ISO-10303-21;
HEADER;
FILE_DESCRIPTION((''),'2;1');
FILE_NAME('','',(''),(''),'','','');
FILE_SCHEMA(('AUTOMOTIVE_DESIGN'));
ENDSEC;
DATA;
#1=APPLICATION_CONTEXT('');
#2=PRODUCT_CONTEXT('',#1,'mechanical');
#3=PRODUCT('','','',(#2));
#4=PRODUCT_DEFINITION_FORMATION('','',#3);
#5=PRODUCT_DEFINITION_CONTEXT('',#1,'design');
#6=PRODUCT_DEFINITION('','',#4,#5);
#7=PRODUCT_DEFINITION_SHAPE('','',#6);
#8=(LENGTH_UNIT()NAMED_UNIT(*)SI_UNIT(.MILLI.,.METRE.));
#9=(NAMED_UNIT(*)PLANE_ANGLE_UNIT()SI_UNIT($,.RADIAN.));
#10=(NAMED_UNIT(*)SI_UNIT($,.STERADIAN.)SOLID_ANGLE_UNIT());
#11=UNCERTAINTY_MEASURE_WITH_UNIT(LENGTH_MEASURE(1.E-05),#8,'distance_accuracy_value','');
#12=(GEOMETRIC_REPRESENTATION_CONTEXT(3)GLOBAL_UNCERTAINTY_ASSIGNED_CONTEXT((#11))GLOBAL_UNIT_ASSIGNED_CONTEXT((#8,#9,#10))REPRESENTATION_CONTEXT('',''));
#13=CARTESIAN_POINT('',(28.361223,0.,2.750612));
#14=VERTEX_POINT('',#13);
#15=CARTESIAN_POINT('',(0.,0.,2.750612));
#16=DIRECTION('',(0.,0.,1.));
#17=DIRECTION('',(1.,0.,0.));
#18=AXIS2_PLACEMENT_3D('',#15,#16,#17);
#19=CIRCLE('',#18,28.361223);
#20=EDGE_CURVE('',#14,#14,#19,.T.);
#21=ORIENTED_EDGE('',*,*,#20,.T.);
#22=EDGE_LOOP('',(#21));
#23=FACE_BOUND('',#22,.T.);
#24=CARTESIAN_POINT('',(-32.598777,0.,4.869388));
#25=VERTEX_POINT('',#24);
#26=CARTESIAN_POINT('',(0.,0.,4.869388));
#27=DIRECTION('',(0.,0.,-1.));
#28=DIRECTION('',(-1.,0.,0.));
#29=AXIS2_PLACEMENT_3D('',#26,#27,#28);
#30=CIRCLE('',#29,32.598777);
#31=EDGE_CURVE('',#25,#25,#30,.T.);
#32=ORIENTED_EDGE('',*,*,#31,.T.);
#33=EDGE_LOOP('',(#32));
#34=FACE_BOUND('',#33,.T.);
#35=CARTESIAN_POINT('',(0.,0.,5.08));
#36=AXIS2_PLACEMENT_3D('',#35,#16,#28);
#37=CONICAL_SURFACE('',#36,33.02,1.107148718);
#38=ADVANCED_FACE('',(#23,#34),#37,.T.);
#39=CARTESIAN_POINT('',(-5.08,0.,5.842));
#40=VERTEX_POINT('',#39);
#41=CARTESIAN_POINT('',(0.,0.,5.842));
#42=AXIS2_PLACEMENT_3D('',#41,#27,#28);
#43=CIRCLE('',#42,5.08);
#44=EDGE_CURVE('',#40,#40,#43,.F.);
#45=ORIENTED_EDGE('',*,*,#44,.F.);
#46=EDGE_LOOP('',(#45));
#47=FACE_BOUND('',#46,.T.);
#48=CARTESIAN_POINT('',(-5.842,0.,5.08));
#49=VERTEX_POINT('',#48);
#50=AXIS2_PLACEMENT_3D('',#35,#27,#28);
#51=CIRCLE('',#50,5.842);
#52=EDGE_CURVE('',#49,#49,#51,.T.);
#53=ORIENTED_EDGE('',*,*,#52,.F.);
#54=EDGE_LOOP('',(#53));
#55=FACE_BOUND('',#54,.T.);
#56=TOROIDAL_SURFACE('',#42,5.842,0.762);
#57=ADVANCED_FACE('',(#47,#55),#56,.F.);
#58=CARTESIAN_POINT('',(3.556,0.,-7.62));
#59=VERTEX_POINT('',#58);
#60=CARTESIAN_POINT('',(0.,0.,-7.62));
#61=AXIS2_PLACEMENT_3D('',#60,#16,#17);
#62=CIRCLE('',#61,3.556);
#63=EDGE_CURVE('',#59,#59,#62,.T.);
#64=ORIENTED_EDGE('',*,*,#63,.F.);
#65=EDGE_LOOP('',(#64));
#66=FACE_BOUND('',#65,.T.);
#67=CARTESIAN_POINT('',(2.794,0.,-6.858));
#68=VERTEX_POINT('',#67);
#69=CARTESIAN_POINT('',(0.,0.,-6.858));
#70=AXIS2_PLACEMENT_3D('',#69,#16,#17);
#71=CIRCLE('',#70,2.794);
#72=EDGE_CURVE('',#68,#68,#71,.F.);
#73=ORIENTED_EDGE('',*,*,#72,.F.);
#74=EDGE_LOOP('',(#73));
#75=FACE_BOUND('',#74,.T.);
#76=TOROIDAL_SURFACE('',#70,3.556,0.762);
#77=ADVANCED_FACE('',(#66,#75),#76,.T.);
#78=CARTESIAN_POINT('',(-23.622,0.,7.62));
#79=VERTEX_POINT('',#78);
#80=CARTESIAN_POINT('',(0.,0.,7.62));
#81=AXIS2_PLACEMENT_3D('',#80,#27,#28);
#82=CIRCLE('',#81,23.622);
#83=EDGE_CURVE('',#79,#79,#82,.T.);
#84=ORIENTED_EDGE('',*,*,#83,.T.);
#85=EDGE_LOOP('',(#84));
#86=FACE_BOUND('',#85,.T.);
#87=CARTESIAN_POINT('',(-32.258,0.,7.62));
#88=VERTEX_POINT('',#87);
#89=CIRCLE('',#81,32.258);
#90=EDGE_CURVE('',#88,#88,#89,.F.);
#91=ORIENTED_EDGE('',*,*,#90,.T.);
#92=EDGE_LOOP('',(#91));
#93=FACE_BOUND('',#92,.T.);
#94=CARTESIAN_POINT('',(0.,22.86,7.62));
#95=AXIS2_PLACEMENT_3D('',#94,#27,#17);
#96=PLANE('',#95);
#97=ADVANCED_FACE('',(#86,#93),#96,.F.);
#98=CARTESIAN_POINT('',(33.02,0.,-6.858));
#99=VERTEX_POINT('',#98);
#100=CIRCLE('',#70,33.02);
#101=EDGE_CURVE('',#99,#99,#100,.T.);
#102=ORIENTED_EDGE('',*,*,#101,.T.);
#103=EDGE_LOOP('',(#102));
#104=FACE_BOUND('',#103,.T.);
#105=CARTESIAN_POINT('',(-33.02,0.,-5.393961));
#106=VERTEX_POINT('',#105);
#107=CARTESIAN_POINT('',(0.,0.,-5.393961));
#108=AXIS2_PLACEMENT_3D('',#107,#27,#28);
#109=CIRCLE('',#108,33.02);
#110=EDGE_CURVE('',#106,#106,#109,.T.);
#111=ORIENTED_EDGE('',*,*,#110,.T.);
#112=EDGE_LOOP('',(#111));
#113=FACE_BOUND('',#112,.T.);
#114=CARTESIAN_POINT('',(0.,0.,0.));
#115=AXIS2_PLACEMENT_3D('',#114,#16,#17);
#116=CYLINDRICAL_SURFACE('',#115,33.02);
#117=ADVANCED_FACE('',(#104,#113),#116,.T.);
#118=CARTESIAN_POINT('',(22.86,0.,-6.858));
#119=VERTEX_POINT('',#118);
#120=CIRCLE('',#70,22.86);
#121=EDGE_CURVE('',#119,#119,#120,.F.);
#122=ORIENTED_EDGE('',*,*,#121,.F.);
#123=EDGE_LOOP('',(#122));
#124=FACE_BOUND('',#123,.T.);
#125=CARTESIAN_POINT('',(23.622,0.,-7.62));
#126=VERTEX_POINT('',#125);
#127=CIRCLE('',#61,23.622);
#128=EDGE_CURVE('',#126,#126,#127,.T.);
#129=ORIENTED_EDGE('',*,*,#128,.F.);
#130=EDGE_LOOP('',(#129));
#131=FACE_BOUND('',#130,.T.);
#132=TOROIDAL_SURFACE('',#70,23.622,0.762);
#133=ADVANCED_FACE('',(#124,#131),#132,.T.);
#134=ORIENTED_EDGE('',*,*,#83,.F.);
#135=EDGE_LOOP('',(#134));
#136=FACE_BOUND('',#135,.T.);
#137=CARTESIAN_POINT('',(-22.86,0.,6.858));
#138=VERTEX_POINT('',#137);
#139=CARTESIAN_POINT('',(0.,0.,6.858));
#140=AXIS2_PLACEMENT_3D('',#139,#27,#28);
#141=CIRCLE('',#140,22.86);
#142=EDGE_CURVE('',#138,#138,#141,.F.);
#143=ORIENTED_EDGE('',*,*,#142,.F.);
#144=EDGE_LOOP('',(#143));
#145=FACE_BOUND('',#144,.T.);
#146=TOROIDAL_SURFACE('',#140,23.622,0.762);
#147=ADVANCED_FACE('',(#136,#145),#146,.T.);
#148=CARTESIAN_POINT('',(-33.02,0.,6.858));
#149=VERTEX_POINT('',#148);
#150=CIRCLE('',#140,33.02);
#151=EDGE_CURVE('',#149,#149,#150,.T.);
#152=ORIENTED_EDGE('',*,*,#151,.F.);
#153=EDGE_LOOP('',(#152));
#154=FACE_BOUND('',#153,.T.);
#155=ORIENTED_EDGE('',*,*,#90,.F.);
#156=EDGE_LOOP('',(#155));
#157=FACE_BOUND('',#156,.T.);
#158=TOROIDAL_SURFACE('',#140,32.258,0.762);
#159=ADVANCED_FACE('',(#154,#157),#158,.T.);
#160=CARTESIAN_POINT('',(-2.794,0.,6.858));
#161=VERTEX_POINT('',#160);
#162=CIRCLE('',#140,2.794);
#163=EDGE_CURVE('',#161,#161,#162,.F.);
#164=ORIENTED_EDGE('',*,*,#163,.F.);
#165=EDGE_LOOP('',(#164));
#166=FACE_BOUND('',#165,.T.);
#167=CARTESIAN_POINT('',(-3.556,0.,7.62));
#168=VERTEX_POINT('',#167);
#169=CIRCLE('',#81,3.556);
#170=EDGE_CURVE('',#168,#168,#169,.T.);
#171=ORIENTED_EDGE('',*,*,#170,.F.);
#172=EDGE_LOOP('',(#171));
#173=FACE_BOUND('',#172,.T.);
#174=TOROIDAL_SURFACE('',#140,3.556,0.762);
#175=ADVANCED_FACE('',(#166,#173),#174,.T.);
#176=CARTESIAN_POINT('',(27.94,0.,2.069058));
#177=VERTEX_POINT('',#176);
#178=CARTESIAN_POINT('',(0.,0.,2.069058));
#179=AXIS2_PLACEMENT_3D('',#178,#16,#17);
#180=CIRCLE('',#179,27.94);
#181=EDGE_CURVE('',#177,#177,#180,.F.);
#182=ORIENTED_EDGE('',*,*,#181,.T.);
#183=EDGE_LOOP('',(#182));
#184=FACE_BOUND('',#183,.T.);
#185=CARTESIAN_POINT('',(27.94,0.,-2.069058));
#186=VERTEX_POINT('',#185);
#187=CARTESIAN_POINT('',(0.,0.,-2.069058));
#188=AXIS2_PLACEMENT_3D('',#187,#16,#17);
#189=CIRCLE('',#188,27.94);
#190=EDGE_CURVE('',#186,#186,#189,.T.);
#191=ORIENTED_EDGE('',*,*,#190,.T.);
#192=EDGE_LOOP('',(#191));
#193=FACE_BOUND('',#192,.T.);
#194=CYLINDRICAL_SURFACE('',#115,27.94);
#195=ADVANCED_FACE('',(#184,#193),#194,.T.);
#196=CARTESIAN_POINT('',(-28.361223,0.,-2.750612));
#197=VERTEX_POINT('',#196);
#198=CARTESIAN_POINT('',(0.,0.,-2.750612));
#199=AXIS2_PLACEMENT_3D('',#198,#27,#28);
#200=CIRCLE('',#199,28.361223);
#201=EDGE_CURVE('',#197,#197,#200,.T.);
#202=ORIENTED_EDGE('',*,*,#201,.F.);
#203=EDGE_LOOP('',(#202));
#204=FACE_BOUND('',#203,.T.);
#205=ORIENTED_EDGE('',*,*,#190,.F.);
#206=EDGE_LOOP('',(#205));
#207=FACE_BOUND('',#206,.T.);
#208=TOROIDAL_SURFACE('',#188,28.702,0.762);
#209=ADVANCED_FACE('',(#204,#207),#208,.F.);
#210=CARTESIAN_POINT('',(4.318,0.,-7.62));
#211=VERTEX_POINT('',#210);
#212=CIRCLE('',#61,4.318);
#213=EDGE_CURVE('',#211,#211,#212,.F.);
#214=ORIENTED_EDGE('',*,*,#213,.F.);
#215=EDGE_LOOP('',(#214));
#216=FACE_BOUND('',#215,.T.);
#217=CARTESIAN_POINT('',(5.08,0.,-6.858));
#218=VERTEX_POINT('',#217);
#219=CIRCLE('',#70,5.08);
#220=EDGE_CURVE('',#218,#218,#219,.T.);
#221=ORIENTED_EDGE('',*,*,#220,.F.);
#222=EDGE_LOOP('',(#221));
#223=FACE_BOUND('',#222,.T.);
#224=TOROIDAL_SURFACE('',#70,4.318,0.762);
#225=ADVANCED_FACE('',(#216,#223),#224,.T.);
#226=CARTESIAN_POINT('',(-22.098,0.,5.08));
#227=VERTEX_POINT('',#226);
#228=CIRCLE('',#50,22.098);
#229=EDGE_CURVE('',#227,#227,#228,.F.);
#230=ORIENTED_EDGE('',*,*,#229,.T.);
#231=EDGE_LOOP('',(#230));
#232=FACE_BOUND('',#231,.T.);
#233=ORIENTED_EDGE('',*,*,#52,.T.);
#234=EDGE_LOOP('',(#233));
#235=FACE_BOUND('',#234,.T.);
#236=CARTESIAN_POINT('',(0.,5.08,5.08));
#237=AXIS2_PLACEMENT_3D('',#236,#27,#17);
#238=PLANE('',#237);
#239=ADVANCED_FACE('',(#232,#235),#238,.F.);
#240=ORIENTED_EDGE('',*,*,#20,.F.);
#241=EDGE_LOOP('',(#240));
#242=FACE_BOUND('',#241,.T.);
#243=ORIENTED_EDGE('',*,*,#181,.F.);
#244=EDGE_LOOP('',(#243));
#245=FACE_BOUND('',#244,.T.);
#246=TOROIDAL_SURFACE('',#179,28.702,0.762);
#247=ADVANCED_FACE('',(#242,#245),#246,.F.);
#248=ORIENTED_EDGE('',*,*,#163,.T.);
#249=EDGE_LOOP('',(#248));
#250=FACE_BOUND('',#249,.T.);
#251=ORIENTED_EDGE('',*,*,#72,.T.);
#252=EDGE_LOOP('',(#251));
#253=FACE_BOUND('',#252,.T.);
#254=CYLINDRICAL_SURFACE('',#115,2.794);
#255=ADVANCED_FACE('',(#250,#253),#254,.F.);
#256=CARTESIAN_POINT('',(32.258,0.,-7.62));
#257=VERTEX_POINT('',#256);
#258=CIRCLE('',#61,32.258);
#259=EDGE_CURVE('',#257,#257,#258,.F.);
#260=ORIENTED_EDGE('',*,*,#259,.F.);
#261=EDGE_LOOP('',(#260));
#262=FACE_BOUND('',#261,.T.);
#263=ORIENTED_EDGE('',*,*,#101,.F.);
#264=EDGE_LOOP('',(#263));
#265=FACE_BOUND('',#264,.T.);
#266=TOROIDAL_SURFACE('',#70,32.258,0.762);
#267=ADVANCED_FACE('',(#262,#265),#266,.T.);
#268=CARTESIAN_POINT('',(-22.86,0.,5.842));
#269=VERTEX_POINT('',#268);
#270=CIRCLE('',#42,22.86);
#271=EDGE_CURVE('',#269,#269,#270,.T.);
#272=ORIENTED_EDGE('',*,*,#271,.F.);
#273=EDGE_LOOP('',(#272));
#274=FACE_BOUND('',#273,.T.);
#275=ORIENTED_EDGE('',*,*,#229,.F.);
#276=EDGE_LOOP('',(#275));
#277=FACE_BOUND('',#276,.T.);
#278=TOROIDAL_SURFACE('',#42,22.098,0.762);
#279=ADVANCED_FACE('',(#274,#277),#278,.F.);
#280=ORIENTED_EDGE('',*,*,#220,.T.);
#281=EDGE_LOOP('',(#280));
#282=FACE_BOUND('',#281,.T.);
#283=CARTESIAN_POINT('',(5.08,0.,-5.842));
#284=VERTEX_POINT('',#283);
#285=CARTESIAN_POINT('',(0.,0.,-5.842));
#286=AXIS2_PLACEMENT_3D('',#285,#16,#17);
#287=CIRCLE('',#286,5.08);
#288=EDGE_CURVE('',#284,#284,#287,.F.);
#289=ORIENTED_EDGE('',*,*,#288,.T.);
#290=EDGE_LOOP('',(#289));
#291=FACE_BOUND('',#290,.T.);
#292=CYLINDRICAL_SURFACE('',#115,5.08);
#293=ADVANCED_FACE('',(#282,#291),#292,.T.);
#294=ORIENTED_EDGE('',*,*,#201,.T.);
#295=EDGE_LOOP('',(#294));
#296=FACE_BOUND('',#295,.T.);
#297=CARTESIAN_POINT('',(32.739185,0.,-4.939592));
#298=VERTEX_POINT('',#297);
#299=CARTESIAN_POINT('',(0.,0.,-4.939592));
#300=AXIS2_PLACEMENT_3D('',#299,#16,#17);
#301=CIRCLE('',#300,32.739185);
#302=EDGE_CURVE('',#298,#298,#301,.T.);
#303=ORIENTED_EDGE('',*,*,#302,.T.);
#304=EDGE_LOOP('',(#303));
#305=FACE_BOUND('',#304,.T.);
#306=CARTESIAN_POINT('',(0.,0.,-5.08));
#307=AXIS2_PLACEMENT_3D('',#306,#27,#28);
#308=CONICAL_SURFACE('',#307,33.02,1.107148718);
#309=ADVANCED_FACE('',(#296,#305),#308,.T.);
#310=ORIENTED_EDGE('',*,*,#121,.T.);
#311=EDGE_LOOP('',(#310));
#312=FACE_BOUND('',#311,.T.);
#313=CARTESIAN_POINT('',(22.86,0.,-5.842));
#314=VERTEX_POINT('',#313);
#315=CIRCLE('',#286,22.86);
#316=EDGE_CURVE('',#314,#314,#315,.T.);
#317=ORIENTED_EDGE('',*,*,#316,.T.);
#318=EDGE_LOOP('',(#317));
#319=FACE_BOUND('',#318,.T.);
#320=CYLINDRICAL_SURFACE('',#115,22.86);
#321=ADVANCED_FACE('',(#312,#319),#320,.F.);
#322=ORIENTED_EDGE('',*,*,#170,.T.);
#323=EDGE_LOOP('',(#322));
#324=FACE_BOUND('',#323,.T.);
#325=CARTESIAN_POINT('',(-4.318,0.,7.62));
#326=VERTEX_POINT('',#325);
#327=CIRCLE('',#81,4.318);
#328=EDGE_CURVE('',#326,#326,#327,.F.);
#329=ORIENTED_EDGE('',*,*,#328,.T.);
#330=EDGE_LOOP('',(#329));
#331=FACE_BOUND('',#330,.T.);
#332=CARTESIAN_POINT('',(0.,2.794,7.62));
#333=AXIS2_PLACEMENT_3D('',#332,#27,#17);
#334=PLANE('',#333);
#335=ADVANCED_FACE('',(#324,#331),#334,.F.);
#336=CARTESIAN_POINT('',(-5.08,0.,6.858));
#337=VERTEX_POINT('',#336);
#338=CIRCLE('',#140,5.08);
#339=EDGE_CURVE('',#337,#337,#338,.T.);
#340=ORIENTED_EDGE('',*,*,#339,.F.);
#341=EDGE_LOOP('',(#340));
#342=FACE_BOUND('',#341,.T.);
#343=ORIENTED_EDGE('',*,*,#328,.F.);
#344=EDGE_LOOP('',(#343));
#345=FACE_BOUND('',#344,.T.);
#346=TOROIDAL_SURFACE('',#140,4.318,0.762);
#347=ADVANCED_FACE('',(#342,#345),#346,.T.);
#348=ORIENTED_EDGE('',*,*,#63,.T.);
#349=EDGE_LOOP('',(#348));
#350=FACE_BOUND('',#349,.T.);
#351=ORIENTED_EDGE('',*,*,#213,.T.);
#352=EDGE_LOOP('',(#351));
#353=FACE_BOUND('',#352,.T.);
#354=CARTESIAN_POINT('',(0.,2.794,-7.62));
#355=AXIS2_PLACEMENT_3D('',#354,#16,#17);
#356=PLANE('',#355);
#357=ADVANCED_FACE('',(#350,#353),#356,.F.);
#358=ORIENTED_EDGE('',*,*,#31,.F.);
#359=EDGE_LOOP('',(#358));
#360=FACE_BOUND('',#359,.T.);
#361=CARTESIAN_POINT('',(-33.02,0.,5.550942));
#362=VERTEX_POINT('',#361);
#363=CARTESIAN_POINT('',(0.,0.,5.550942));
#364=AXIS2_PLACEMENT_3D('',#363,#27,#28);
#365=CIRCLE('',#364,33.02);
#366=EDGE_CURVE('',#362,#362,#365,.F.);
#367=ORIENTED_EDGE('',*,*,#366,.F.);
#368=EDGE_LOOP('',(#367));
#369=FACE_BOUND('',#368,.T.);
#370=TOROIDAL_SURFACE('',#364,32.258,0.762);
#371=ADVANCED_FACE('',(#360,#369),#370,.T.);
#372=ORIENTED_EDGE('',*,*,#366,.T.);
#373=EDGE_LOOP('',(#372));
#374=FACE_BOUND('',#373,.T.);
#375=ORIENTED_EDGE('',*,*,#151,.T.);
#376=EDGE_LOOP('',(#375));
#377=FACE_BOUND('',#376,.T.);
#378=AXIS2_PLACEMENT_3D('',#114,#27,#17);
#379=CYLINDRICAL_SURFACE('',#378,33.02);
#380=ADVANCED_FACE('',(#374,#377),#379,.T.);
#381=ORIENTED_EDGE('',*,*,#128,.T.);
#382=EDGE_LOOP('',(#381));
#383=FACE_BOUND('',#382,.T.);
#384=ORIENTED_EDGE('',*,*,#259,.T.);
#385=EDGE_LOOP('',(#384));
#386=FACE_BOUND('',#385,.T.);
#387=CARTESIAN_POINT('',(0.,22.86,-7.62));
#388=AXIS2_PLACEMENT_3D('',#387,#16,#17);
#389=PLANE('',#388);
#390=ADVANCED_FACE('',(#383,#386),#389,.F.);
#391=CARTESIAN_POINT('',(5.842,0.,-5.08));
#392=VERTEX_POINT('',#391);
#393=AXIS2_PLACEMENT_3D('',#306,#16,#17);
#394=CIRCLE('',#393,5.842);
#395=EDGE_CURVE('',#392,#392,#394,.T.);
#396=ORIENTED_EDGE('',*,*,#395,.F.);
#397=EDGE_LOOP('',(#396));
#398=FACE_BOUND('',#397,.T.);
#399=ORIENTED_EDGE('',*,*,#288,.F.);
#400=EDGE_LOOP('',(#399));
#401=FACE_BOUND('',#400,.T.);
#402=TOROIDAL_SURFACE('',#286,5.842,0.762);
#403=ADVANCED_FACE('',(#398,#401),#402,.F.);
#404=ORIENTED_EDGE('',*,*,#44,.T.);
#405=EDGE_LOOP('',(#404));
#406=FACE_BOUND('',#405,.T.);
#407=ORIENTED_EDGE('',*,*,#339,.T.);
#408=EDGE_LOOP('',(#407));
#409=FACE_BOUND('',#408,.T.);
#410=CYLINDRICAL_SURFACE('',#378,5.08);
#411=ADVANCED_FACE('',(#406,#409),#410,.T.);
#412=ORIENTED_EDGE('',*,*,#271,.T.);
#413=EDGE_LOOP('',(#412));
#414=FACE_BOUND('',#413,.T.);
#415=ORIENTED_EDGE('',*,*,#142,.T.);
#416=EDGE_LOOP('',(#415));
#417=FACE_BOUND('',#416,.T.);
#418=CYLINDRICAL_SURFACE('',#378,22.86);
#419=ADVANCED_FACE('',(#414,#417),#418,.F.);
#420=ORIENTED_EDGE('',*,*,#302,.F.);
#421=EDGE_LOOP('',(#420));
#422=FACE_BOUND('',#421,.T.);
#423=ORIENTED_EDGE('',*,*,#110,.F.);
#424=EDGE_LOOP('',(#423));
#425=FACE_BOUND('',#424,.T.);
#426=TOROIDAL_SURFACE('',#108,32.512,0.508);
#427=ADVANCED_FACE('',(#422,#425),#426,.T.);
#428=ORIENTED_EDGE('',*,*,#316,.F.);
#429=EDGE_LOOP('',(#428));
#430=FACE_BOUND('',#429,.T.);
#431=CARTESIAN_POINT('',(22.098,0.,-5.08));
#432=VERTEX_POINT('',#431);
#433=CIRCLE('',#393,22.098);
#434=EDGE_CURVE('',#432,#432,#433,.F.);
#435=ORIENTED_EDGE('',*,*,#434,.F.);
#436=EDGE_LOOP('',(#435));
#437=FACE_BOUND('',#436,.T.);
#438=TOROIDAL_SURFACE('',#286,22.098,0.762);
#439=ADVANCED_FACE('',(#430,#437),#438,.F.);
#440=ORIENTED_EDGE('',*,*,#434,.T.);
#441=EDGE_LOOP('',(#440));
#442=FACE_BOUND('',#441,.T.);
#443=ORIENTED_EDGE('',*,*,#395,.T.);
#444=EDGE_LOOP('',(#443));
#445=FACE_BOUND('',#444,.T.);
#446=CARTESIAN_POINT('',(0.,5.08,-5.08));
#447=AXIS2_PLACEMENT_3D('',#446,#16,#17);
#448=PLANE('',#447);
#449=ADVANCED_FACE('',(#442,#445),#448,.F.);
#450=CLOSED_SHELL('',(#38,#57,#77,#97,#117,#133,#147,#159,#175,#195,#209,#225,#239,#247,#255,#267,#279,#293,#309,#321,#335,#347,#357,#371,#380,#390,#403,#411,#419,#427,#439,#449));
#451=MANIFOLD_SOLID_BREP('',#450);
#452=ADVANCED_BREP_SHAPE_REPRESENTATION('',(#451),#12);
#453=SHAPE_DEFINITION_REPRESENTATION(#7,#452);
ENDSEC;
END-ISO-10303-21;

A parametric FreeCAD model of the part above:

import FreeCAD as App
import Part
import Sketcher

V = App.Vector
Q = App.Units.Quantity


def edges_at(feature, points):
    """Names of the edges that pass closest to the given points."""
    edges = feature.Shape.Edges
    near = lambda p: min(range(len(edges)), key=lambda i: edges[i].distToShape(Part.Vertex(*p))[0])
    return sorted({f"Edge{near(p) + 1}" for p in points})

doc = App.newDocument("Part")
body = doc.addObject("PartDesign::Body", "Body")

# Sketch on YZ plane
sketch1 = doc.addObject("Sketcher::SketchObject", "Sketch")
body.addObject(sketch1)
sketch1.AttachmentSupport = (doc.YZ_Plane, [""])
sketch1.MapMode = "FlatFace"
sketch1.addGeometry(Part.LineSegment(V(2.8, 0, 0), V(2.8, -7.6, 0)), False)
sketch1.addGeometry(Part.LineSegment(V(2.8, -7.6, 0), V(5.1, -7.6, 0)), False)
sketch1.addGeometry(Part.LineSegment(V(5.1, -7.6, 0), V(5.1, -5.1, 0)), False)
sketch1.addGeometry(Part.LineSegment(V(5.1, -5.1, 0), V(22.9, -5.1, 0)), False)
sketch1.addGeometry(Part.LineSegment(V(22.9, -5.1, 0), V(22.9, -7.6, 0)), False)
sketch1.addGeometry(Part.LineSegment(V(22.9, -7.6, 0), V(33, -7.6, 0)), False)
sketch1.addGeometry(Part.LineSegment(V(33, -7.6, 0), V(33, -5.1, 0)), False)
sketch1.addGeometry(Part.LineSegment(V(33, -5.1, 0), V(27.9, -2.5, 0)), False)
sketch1.addGeometry(Part.LineSegment(V(27.9, -2.5, 0), V(27.9, 0, 0)), False)
sketch1.addGeometry(Part.LineSegment(V(27.9, 0, 0), V(2.8, 0, 0)), False)
sketch1.addConstraint(Sketcher.Constraint("Coincident", 0, 2, 1, 1))
sketch1.addConstraint(Sketcher.Constraint("Coincident", 1, 2, 2, 1))
sketch1.addConstraint(Sketcher.Constraint("Coincident", 2, 2, 3, 1))
sketch1.addConstraint(Sketcher.Constraint("Coincident", 3, 2, 4, 1))
sketch1.addConstraint(Sketcher.Constraint("Coincident", 4, 2, 5, 1))
sketch1.addConstraint(Sketcher.Constraint("Coincident", 5, 2, 6, 1))
sketch1.addConstraint(Sketcher.Constraint("Coincident", 6, 2, 7, 1))
sketch1.addConstraint(Sketcher.Constraint("Coincident", 7, 2, 8, 1))
sketch1.addConstraint(Sketcher.Constraint("Coincident", 8, 2, 9, 1))
sketch1.addConstraint(Sketcher.Constraint("Coincident", 9, 2, 0, 1))
sketch1.addConstraint(Sketcher.Constraint("Vertical", 0))
sketch1.addConstraint(Sketcher.Constraint("Horizontal", 1))
sketch1.addConstraint(Sketcher.Constraint("Vertical", 2))
sketch1.addConstraint(Sketcher.Constraint("Horizontal", 3))
sketch1.addConstraint(Sketcher.Constraint("Vertical", 4))
sketch1.addConstraint(Sketcher.Constraint("Horizontal", 5))
sketch1.addConstraint(Sketcher.Constraint("Vertical", 6))
sketch1.addConstraint(Sketcher.Constraint("Vertical", 8))
sketch1.addConstraint(Sketcher.Constraint("Horizontal", 9))
sketch1.addConstraint(Sketcher.Constraint("PointOnObject", 8, 2, -1))
sketch1.addConstraint(Sketcher.Constraint("Horizontal", 1, 2, 4, 2))
sketch1.addConstraint(Sketcher.Constraint("Horizontal", 3, 2, 6, 2))
sketch1.addConstraint(Sketcher.Constraint("Equal", 6, 8))
sketch1.addConstraint(Sketcher.Constraint("DistanceX", 3, 1, 3, 2, Q("0.7 in")))
sketch1.addConstraint(Sketcher.Constraint("DistanceX", 5, 1, 5, 2, Q("0.4 in")))
sketch1.addConstraint(Sketcher.Constraint("DistanceY", 0, 2, 0, 1, Q("0.3 in")))
sketch1.addConstraint(Sketcher.Constraint("DistanceY", 2, 1, 2, 2, Q("0.1 in")))
sketch1.addConstraint(Sketcher.Constraint("DistanceX", 1, 1, 1, 2, Q("0.09 in")))
sketch1.addConstraint(Sketcher.Constraint("DistanceX", 9, 2, 9, 1, Q("0.99 in")))
sketch1.addConstraint(Sketcher.Constraint("DistanceX", -1, 1, 1, 2, Q("0.2 in")))
revolution = doc.addObject("PartDesign::Revolution", "Revolution")
body.addObject(revolution)
revolution.Profile = sketch1
revolution.ReferenceAxis = (sketch1, ["V_Axis"])
revolution.Angle = 360
doc.recompute()

mirrored = doc.addObject("PartDesign::Mirrored", "Mirrored")
body.addObject(mirrored)
mirrored.Originals = [revolution]
mirrored.MirrorPlane = (doc.XY_Plane, [""])
body.Tip = mirrored
doc.recompute()

fillet = doc.addObject("PartDesign::Fillet", "Fillet")
body.addObject(fillet)
fillet.Base = (mirrored, edges_at(mirrored, [
    (-22.86, 0, -5.08),
    (-5.08, 0, -5.08),
    (-5.08, 0, -7.62),
    (-2.794, 0, -7.62),
    (-2.794, 0, 7.62),
    (-5.08, 0, 7.62),
    (-5.08, 0, 5.08),
    (-22.86, 0, 5.08),
    (-22.86, 0, 7.62),
    (-33.02, 0, 7.62),
    (-33.02, 0, 5.08),
    (-27.94, 0, 2.54),
    (-27.94, 0, -2.54),
    (-33.02, 0, -7.62),
    (-22.86, 0, -7.62),
]))
fillet.Radius = Q("0.03 in")
doc.recompute()

fillet2 = doc.addObject("PartDesign::Fillet", "Fillet001")
body.addObject(fillet2)
fillet2.Base = (fillet, edges_at(fillet, [(-33.02, 0, -5.08)]))
fillet2.Radius = Q("0.02 in")

doc.recompute()
